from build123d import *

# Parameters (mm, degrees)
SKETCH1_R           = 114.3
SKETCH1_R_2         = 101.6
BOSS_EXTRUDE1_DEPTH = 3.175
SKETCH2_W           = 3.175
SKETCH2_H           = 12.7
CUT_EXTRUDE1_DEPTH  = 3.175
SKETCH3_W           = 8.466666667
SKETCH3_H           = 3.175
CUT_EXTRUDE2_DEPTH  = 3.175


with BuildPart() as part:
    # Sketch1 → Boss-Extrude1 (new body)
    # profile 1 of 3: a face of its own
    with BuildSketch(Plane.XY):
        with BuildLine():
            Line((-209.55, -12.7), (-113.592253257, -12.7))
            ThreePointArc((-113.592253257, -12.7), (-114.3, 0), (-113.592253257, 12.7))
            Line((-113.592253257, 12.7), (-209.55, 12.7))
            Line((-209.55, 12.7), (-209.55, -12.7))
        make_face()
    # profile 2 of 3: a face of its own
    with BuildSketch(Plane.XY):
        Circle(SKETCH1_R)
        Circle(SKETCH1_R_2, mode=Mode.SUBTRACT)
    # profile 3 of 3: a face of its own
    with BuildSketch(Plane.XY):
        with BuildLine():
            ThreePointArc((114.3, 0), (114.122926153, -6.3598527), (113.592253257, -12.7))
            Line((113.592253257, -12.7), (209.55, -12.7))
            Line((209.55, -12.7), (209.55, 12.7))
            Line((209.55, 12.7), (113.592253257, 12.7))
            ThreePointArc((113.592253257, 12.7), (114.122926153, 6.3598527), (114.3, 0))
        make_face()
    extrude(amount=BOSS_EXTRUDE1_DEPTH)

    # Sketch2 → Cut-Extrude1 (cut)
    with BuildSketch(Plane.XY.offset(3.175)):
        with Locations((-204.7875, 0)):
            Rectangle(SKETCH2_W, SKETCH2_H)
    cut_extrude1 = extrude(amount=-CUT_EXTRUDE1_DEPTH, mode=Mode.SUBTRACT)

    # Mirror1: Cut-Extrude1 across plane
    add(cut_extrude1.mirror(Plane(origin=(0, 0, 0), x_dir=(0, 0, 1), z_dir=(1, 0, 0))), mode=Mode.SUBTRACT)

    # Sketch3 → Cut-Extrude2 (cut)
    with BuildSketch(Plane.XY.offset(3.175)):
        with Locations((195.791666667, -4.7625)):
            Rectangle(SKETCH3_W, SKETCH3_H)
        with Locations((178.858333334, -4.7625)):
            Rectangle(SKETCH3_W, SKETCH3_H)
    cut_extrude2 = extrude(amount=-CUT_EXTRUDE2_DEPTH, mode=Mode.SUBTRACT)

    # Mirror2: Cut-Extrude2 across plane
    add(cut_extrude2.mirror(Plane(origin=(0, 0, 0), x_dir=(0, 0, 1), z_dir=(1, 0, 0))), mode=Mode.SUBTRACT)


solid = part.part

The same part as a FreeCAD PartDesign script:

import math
import FreeCAD as App
import Part
import Sketcher

V = App.Vector
Q = App.Units.Quantity

doc = App.newDocument("Part")
body = doc.addObject("PartDesign::Body", "Body")

sketch1 = body.newObject("Sketcher::SketchObject", "Sketch")
sketch1.AttachmentSupport = (doc.getObject("XY_Plane"), [""])
sketch1.MapMode = "FlatFace"
sketch1.addGeometry([
    Part.LineSegment(V(-209.55, -12.7, 0), V(-113.592253, -12.7, 0)),
    Part.ArcOfCircle(Part.Circle(V(0, 0, 0), V(0, 0, 1), 114.3), math.radians(-173.62063), math.radians(-6.37937)),
    Part.LineSegment(V(113.592253, -12.7, 0), V(209.55, -12.7, 0)),
    Part.LineSegment(V(209.55, -12.7, 0), V(209.55, 12.7, 0)),
    Part.LineSegment(V(209.55, 12.7, 0), V(113.592253, 12.7, 0)),
    Part.ArcOfCircle(Part.Circle(V(0, 0, 0), V(0, 0, 1), 114.3), math.radians(6.37937), math.radians(173.62063)),
    Part.LineSegment(V(-113.592253, 12.7, 0), V(-209.55, 12.7, 0)),
    Part.LineSegment(V(-209.55, 12.7, 0), V(-209.55, -12.7, 0)),
    Part.Circle(V(0, 0, 0), V(0, 0, 1), 101.6),
], False)
sketch1.addConstraint([
    Sketcher.Constraint("Coincident", 0, 2, 1, 1),
    Sketcher.Constraint("Coincident", 1, 2, 2, 1),
    Sketcher.Constraint("Coincident", 2, 2, 3, 1),
    Sketcher.Constraint("Coincident", 3, 2, 4, 1),
    Sketcher.Constraint("Coincident", 4, 2, 5, 1),
    Sketcher.Constraint("Coincident", 5, 2, 6, 1),
    Sketcher.Constraint("Coincident", 6, 2, 7, 1),
    Sketcher.Constraint("Coincident", 7, 2, 0, 1),
    Sketcher.Constraint("Horizontal", 0),
    Sketcher.Constraint("Horizontal", 2),
    Sketcher.Constraint("Vertical", 3),
    Sketcher.Constraint("Horizontal", 4),
    Sketcher.Constraint("Horizontal", 6),
    Sketcher.Constraint("Vertical", 7),
    Sketcher.Constraint("Coincident", 1, 3, -1, 1),
    Sketcher.Constraint("Coincident", 5, 3, -1, 1),
    Sketcher.Constraint("Coincident", 8, 3, -1, 1),
    Sketcher.Constraint("Equal", 1, 5),
    Sketcher.Constraint("Symmetric", 2, 2, 6, 2, -1, 1),
    Sketcher.Constraint("Horizontal", 0, 2, 1, 2),
    Sketcher.Constraint("Horizontal", 4, 2, 5, 2),
    Sketcher.Constraint("Diameter", 8, Q("8 in")),
    Sketcher.Constraint("Radius", 1, Q("4.5 in")),
    Sketcher.Constraint("DistanceY", 3, 1, 3, 2, Q("1 in")),
    Sketcher.Constraint("DistanceX", -1, 1, 2, 2, Q("8.25 in")),
])
pad1 = body.newObject("PartDesign::Pad", "Pad")
pad1.Profile = sketch1
pad1.Length = Q("0.125 in")

sketch2 = body.newObject("Sketcher::SketchObject", "Sketch001")
sketch2.AttachmentSupport = (doc.getObject("XY_Plane"), [""])
sketch2.MapMode = "FlatFace"
sketch2.AttachmentOffset = App.Placement(V(0, 0, 0.125 * 25.4), App.Rotation())
sketch2.addGeometry([
    Part.LineSegment(V(-206.375, 6.35, 0), V(-206.375, -6.35, 0)),
    Part.LineSegment(V(-206.375, -6.35, 0), V(-203.2, -6.35, 0)),
    Part.LineSegment(V(-203.2, -6.35, 0), V(-203.2, 6.35, 0)),
    Part.LineSegment(V(-203.2, 6.35, 0), V(-206.375, 6.35, 0)),
], False)
sketch2.addConstraint([
    Sketcher.Constraint("Coincident", 0, 2, 1, 1),
    Sketcher.Constraint("Coincident", 1, 2, 2, 1),
    Sketcher.Constraint("Coincident", 2, 2, 3, 1),
    Sketcher.Constraint("Coincident", 3, 2, 0, 1),
    Sketcher.Constraint("Vertical", 0),
    Sketcher.Constraint("Horizontal", 1),
    Sketcher.Constraint("Vertical", 2),
    Sketcher.Constraint("Horizontal", 3),
    Sketcher.Constraint("DistanceY", 0, 2, 0, 1, Q("0.5 in")),
    Sketcher.Constraint("DistanceX", 1, 2, -1, 1, Q("8 in")),
    Sketcher.Constraint("DistanceX", 1, 1, 1, 2, Q("0.125 in")),
    Sketcher.Constraint("DistanceY", 0, 2, -1, 1, Q("0.25 in")),
])
pocket1 = body.newObject("PartDesign::Pocket", "Pocket")
pocket1.Profile = sketch2
pocket1.Length = Q("0.125 in")
doc.recompute()

mirrored = body.newObject("PartDesign::Mirrored", "Mirrored")
mirrored.Originals = [pocket1]
mirrored.MirrorPlane = (doc.getObject("YZ_Plane"), [""])
body.Tip = mirrored

sketch3 = body.newObject("Sketcher::SketchObject", "Sketch002")
sketch3.AttachmentSupport = (doc.getObject("XY_Plane"), [""])
sketch3.MapMode = "FlatFace"
sketch3.AttachmentOffset = App.Placement(V(0, 0, 0.125 * 25.4), App.Rotation())
sketch3.addGeometry([
    Part.LineSegment(V(191.558333, -3.175, 0), V(191.558333, -6.35, 0)),
    Part.LineSegment(V(191.558333, -6.35, 0), V(200.025, -6.35, 0)),
    Part.LineSegment(V(200.025, -6.35, 0), V(200.025, -3.175, 0)),
    Part.LineSegment(V(200.025, -3.175, 0), V(191.558333, -3.175, 0)),
    Part.LineSegment(V(174.625, -3.175, 0), V(174.625, -6.35, 0)),
    Part.LineSegment(V(174.625, -6.35, 0), V(183.091667, -6.35, 0)),
    Part.LineSegment(V(183.091667, -6.35, 0), V(183.091667, -3.175, 0)),
    Part.LineSegment(V(183.091667, -3.175, 0), V(174.625, -3.175, 0)),
], False)
sketch3.addConstraint([
    Sketcher.Constraint("Coincident", 0, 2, 1, 1),
    Sketcher.Constraint("Coincident", 1, 2, 2, 1),
    Sketcher.Constraint("Coincident", 2, 2, 3, 1),
    Sketcher.Constraint("Coincident", 3, 2, 0, 1),
    Sketcher.Constraint("Coincident", 4, 2, 5, 1),
    Sketcher.Constraint("Coincident", 5, 2, 6, 1),
    Sketcher.Constraint("Coincident", 6, 2, 7, 1),
    Sketcher.Constraint("Coincident", 7, 2, 4, 1),
    Sketcher.Constraint("Vertical", 0),
    Sketcher.Constraint("Horizontal", 1),
    Sketcher.Constraint("Vertical", 2),
    Sketcher.Constraint("Horizontal", 3),
    Sketcher.Constraint("Vertical", 4),
    Sketcher.Constraint("Horizontal", 5),
    Sketcher.Constraint("Vertical", 6),
    Sketcher.Constraint("Horizontal", 7),
    Sketcher.Constraint("Horizontal", 1, 2, 4, 2),
    Sketcher.Constraint("Horizontal", 3, 2, 6, 2),
    Sketcher.Constraint("Equal", 3, 5),
    Sketcher.Constraint("DistanceX", 4, 2, 1, 2, Q("1 in")),
    Sketcher.Constraint("DistanceY", 0, 2, 0, 1, Q("0.125 in")),
    Sketcher.Constraint("DistanceY", 0, 2, -1, 1, Q("0.25 in")),
    Sketcher.Constraint("DistanceX", -1, 1, 1, 2, Q("7.875 in")),
    Sketcher.Constraint("DistanceX", 1, 1, 1, 2, 8.466667),
])
pocket2 = body.newObject("PartDesign::Pocket", "Pocket001")
pocket2.Profile = sketch3
pocket2.Length = Q("0.125 in")
doc.recompute()

mirrored2 = body.newObject("PartDesign::Mirrored", "Mirrored001")
mirrored2.Originals = [pocket2]
mirrored2.MirrorPlane = (doc.getObject("YZ_Plane"), [""])
body.Tip = mirrored2

doc.recompute()
